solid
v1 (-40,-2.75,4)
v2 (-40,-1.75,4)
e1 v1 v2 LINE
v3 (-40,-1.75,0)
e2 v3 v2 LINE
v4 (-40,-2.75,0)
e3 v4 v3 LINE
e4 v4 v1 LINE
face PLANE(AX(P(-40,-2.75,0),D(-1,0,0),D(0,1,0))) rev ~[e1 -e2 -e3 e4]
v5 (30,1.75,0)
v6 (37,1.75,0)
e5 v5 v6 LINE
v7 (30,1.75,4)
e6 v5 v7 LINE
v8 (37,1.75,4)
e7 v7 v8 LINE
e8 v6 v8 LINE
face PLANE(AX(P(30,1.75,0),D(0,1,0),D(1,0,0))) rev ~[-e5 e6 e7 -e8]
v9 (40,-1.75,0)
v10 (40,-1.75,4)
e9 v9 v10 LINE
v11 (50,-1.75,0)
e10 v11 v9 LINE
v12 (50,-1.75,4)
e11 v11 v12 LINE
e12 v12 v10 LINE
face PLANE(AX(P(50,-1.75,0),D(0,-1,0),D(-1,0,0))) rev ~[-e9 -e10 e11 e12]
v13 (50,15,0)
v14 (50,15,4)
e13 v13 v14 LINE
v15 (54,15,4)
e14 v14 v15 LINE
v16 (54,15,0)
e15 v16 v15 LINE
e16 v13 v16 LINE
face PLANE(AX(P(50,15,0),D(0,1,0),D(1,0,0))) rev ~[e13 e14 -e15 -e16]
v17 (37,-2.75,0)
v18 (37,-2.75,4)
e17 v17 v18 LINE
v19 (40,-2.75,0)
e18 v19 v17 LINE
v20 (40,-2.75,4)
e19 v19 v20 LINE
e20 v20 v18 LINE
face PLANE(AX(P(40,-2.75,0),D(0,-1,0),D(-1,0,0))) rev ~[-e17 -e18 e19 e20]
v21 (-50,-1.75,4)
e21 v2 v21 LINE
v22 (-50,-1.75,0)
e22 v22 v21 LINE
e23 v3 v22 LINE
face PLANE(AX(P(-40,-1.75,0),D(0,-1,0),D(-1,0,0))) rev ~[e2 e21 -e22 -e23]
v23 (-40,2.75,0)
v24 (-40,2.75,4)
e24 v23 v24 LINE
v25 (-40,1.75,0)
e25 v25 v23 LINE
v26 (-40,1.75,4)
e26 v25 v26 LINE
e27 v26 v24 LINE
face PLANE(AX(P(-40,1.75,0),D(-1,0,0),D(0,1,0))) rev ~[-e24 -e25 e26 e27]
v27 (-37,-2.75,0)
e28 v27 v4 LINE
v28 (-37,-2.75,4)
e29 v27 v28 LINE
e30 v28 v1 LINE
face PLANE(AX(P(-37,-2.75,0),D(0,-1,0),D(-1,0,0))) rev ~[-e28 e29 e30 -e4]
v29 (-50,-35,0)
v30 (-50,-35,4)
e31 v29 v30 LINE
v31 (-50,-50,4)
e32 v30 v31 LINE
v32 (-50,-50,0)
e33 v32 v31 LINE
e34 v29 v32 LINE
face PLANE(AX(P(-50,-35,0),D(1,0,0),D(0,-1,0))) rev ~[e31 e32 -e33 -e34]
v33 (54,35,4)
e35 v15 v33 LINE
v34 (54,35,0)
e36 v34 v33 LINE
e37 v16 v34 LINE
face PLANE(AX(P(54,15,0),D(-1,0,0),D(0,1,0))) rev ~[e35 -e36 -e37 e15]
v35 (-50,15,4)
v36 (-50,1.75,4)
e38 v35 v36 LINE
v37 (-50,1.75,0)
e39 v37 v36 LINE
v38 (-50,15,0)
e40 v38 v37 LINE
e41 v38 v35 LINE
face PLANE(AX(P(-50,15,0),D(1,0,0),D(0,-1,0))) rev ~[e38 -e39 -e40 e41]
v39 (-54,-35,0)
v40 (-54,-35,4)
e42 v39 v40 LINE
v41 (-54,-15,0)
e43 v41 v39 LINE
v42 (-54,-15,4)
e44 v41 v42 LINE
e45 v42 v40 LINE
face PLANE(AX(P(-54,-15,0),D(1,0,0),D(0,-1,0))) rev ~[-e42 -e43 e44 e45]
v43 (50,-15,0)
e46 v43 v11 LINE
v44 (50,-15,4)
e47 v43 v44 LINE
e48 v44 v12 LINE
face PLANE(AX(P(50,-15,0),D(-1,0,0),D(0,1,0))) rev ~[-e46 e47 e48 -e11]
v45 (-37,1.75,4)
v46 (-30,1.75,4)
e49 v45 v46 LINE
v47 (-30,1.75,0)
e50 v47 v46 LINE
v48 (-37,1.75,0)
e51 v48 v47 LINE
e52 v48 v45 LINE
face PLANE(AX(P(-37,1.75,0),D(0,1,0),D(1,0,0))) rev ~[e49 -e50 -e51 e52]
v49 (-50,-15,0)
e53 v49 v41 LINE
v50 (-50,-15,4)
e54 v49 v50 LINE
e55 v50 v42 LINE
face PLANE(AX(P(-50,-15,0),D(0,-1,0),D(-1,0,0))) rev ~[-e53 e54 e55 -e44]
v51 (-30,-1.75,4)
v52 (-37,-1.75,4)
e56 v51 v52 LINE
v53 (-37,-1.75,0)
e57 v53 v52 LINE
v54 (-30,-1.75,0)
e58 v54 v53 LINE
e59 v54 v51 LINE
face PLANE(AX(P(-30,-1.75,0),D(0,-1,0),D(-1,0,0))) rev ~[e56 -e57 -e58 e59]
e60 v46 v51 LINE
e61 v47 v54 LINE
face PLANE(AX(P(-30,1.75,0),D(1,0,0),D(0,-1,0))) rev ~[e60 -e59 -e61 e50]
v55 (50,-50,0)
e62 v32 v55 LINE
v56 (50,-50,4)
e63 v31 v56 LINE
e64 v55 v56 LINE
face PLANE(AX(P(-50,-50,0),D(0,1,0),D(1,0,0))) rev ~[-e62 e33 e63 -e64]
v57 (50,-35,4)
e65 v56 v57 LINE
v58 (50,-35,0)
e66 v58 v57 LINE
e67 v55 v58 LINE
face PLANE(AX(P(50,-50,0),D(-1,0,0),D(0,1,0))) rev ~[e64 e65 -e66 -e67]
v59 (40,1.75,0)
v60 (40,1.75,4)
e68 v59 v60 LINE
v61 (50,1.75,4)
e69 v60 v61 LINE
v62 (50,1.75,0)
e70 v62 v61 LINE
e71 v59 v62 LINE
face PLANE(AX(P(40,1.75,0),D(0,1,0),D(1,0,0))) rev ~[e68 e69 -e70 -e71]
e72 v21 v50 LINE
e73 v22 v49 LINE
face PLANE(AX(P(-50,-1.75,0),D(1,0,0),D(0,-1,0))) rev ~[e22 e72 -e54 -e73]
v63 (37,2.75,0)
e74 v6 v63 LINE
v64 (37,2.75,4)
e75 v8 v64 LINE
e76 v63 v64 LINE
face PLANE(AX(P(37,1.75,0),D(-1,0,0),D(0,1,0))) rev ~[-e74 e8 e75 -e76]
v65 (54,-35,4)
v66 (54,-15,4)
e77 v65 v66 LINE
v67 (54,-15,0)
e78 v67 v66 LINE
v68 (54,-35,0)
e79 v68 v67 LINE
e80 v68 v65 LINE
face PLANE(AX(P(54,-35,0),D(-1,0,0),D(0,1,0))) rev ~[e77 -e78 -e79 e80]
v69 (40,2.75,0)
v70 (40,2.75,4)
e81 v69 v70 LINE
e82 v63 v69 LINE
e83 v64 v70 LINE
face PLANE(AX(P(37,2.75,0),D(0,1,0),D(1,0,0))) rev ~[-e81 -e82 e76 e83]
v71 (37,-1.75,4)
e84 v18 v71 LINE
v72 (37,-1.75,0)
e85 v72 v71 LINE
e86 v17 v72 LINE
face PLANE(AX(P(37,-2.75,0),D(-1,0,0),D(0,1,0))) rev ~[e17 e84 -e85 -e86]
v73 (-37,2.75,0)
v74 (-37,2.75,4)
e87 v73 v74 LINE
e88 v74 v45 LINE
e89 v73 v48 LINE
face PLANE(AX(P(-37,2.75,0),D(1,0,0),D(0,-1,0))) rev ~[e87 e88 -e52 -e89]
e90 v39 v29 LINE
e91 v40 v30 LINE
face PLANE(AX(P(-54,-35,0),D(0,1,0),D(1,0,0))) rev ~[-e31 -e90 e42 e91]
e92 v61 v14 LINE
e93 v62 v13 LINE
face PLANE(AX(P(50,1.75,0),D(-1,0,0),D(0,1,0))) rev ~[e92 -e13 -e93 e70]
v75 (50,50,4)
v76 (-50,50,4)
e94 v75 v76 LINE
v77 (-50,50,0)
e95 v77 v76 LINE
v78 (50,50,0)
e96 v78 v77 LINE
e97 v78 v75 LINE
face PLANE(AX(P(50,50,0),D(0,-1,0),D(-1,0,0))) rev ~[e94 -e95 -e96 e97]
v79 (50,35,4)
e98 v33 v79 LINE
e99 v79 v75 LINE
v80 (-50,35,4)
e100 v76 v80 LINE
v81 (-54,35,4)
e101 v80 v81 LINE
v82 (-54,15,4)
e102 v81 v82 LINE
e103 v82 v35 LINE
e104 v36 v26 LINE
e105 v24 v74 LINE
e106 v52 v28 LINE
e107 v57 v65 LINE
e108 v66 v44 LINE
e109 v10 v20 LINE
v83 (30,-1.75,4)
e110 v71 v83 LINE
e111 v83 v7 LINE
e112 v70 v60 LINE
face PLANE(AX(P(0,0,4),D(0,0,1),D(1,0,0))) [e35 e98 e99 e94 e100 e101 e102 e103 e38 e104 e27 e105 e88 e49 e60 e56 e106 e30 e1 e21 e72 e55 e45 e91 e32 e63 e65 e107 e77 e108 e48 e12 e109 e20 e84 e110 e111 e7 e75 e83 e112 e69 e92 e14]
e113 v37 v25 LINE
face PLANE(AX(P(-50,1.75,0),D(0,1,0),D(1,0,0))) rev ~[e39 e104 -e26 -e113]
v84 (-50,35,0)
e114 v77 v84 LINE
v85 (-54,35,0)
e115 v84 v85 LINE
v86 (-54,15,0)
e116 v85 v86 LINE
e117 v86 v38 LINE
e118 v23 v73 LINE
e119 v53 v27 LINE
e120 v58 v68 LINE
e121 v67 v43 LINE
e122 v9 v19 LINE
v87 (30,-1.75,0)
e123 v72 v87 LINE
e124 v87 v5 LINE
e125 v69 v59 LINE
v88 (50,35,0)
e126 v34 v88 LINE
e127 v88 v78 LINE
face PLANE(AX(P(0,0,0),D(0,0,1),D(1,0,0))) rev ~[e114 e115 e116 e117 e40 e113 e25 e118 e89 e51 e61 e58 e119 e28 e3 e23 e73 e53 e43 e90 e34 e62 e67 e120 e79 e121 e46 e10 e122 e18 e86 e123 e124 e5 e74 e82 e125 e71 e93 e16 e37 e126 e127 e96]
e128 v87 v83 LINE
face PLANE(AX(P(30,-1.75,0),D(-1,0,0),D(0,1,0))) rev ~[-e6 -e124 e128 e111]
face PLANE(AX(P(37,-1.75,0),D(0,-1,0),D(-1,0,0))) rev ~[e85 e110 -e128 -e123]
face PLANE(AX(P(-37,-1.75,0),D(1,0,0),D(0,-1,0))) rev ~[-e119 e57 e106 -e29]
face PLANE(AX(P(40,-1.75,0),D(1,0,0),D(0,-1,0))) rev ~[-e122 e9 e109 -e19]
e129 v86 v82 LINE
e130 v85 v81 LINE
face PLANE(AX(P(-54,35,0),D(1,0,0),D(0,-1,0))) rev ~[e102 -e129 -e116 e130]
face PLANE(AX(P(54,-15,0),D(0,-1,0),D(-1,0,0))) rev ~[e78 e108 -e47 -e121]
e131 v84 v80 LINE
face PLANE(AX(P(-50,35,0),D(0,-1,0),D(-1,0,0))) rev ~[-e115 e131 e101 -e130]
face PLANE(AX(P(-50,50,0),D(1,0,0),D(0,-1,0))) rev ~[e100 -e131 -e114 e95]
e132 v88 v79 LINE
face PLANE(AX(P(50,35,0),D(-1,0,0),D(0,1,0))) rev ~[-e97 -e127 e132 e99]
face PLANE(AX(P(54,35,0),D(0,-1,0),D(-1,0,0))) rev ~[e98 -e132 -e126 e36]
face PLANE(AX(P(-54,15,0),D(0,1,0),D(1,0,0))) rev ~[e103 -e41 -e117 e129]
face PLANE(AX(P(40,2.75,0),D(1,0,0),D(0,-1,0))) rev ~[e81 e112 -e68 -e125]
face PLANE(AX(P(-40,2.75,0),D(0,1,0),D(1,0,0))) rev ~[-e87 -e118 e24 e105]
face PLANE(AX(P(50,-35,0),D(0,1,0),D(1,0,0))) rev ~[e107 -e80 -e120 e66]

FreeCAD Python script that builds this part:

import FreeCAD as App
import Part
import Sketcher
from FreeCAD import Vector

doc = App.newDocument("Part")
body = doc.addObject("PartDesign::Body", "Body")

sketch1 = body.newObject("Sketcher::SketchObject", "Sketch")
sketch1.AttachmentSupport = (doc.getObject("XY_Plane"), [""])
sketch1.MapMode = "FlatFace"
sketch1.addGeometry([
    Part.LineSegment(Vector(-50, -50, 0), Vector(50, -50, 0)),
    Part.LineSegment(Vector(50, -50, 0), Vector(50, -35, 0)),
    Part.LineSegment(Vector(50, -35, 0), Vector(54, -35, 0)),
    Part.LineSegment(Vector(54, -35, 0), Vector(54, -15, 0)),
    Part.LineSegment(Vector(54, -15, 0), Vector(50, -15, 0)),
    Part.LineSegment(Vector(50, -15, 0), Vector(50, -1.75, 0)),
    Part.LineSegment(Vector(50, -1.75, 0), Vector(40, -1.75, 0)),
    Part.LineSegment(Vector(40, -1.75, 0), Vector(40, -2.75, 0)),
    Part.LineSegment(Vector(40, -2.75, 0), Vector(37, -2.75, 0)),
    Part.LineSegment(Vector(37, -2.75, 0), Vector(37, -1.75, 0)),
    Part.LineSegment(Vector(37, -1.75, 0), Vector(30, -1.75, 0)),
    Part.LineSegment(Vector(30, -1.75, 0), Vector(30, 1.75, 0)),
    Part.LineSegment(Vector(30, 1.75, 0), Vector(37, 1.75, 0)),
    Part.LineSegment(Vector(37, 1.75, 0), Vector(37, 2.75, 0)),
    Part.LineSegment(Vector(37, 2.75, 0), Vector(40, 2.75, 0)),
    Part.LineSegment(Vector(40, 2.75, 0), Vector(40, 1.75, 0)),
    Part.LineSegment(Vector(40, 1.75, 0), Vector(50, 1.75, 0)),
    Part.LineSegment(Vector(50, 1.75, 0), Vector(50, 15, 0)),
    Part.LineSegment(Vector(50, 15, 0), Vector(54, 15, 0)),
    Part.LineSegment(Vector(54, 15, 0), Vector(54, 35, 0)),
    Part.LineSegment(Vector(54, 35, 0), Vector(50, 35, 0)),
    Part.LineSegment(Vector(50, 35, 0), Vector(50, 50, 0)),
    Part.LineSegment(Vector(50, 50, 0), Vector(-50, 50, 0)),
    Part.LineSegment(Vector(-50, 50, 0), Vector(-50, 35, 0)),
    Part.LineSegment(Vector(-50, 35, 0), Vector(-54, 35, 0)),
    Part.LineSegment(Vector(-54, 35, 0), Vector(-54, 15, 0)),
    Part.LineSegment(Vector(-54, 15, 0), Vector(-50, 15, 0)),
    Part.LineSegment(Vector(-50, 15, 0), Vector(-50, 1.75, 0)),
    Part.LineSegment(Vector(-50, 1.75, 0), Vector(-40, 1.75, 0)),
    Part.LineSegment(Vector(-40, 1.75, 0), Vector(-40, 2.75, 0)),
    Part.LineSegment(Vector(-40, 2.75, 0), Vector(-37, 2.75, 0)),
    Part.LineSegment(Vector(-37, 2.75, 0), Vector(-37, 1.75, 0)),
    Part.LineSegment(Vector(-37, 1.75, 0), Vector(-30, 1.75, 0)),
    Part.LineSegment(Vector(-30, 1.75, 0), Vector(-30, -1.75, 0)),
    Part.LineSegment(Vector(-30, -1.75, 0), Vector(-37, -1.75, 0)),
    Part.LineSegment(Vector(-37, -1.75, 0), Vector(-37, -2.75, 0)),
    Part.LineSegment(Vector(-37, -2.75, 0), Vector(-40, -2.75, 0)),
    Part.LineSegment(Vector(-40, -2.75, 0), Vector(-40, -1.75, 0)),
    Part.LineSegment(Vector(-40, -1.75, 0), Vector(-50, -1.75, 0)),
    Part.LineSegment(Vector(-50, -1.75, 0), Vector(-50, -15, 0)),
    Part.LineSegment(Vector(-50, -15, 0), Vector(-54, -15, 0)),
    Part.LineSegment(Vector(-54, -15, 0), Vector(-54, -35, 0)),
    Part.LineSegment(Vector(-54, -35, 0), Vector(-50, -35, 0)),
    Part.LineSegment(Vector(-50, -35, 0), Vector(-50, -50, 0)),
], False)
sketch1.addConstraint([
    Sketcher.Constraint("Coincident", 0, 2, 1, 1),
    Sketcher.Constraint("Coincident", 1, 2, 2, 1),
    Sketcher.Constraint("Coincident", 2, 2, 3, 1),
    Sketcher.Constraint("Coincident", 3, 2, 4, 1),
    Sketcher.Constraint("Coincident", 4, 2, 5, 1),
    Sketcher.Constraint("Coincident", 5, 2, 6, 1),
    Sketcher.Constraint("Coincident", 6, 2, 7, 1),
    Sketcher.Constraint("Coincident", 7, 2, 8, 1),
    Sketcher.Constraint("Coincident", 8, 2, 9, 1),
    Sketcher.Constraint("Coincident", 9, 2, 10, 1),
    Sketcher.Constraint("Coincident", 10, 2, 11, 1),
    Sketcher.Constraint("Coincident", 11, 2, 12, 1),
    Sketcher.Constraint("Coincident", 12, 2, 13, 1),
    Sketcher.Constraint("Coincident", 13, 2, 14, 1),
    Sketcher.Constraint("Coincident", 14, 2, 15, 1),
    Sketcher.Constraint("Coincident", 15, 2, 16, 1),
    Sketcher.Constraint("Coincident", 16, 2, 17, 1),
    Sketcher.Constraint("Coincident", 17, 2, 18, 1),
    Sketcher.Constraint("Coincident", 18, 2, 19, 1),
    Sketcher.Constraint("Coincident", 19, 2, 20, 1),
    Sketcher.Constraint("Coincident", 20, 2, 21, 1),
    Sketcher.Constraint("Coincident", 21, 2, 22, 1),
    Sketcher.Constraint("Coincident", 22, 2, 23, 1),
    Sketcher.Constraint("Coincident", 23, 2, 24, 1),
    Sketcher.Constraint("Coincident", 24, 2, 25, 1),
    Sketcher.Constraint("Coincident", 25, 2, 26, 1),
    Sketcher.Constraint("Coincident", 26, 2, 27, 1),
    Sketcher.Constraint("Coincident", 27, 2, 28, 1),
    Sketcher.Constraint("Coincident", 28, 2, 29, 1),
    Sketcher.Constraint("Coincident", 29, 2, 30, 1),
    Sketcher.Constraint("Coincident", 30, 2, 31, 1),
    Sketcher.Constraint("Coincident", 31, 2, 32, 1),
    Sketcher.Constraint("Coincident", 32, 2, 33, 1),
    Sketcher.Constraint("Coincident", 33, 2, 34, 1),
    Sketcher.Constraint("Coincident", 34, 2, 35, 1),
    Sketcher.Constraint("Coincident", 35, 2, 36, 1),
    Sketcher.Constraint("Coincident", 36, 2, 37, 1),
    Sketcher.Constraint("Coincident", 37, 2, 38, 1),
    Sketcher.Constraint("Coincident", 38, 2, 39, 1),
    Sketcher.Constraint("Coincident", 39, 2, 40, 1),
    Sketcher.Constraint("Coincident", 40, 2, 41, 1),
    Sketcher.Constraint("Coincident", 41, 2, 42, 1),
    Sketcher.Constraint("Coincident", 42, 2, 43, 1),
    Sketcher.Constraint("Coincident", 43, 2, 0, 1),
    Sketcher.Constraint("Horizontal", 0),
    Sketcher.Constraint("Vertical", 1),
    Sketcher.Constraint("Horizontal", 2),
    Sketcher.Constraint("Vertical", 3),
    Sketcher.Constraint("Horizontal", 4),
    Sketcher.Constraint("Vertical", 5),
    Sketcher.Constraint("Horizontal", 6),
    Sketcher.Constraint("Vertical", 7),
    Sketcher.Constraint("Horizontal", 8),
    Sketcher.Constraint("Vertical", 9),
    Sketcher.Constraint("Horizontal", 10),
    Sketcher.Constraint("Vertical", 11),
    Sketcher.Constraint("Horizontal", 12),
    Sketcher.Constraint("Vertical", 13),
    Sketcher.Constraint("Horizontal", 14),
    Sketcher.Constraint("Vertical", 15),
    Sketcher.Constraint("Horizontal", 16),
    Sketcher.Constraint("Vertical", 17),
    Sketcher.Constraint("Horizontal", 18),
    Sketcher.Constraint("Vertical", 19),
    Sketcher.Constraint("Horizontal", 20),
    Sketcher.Constraint("Vertical", 21),
    Sketcher.Constraint("Horizontal", 22),
    Sketcher.Constraint("Vertical", 23),
    Sketcher.Constraint("Horizontal", 24),
    Sketcher.Constraint("Vertical", 25),
    Sketcher.Constraint("Horizontal", 26),
    Sketcher.Constraint("Vertical", 27),
    Sketcher.Constraint("Horizontal", 28),
    Sketcher.Constraint("Vertical", 29),
    Sketcher.Constraint("Horizontal", 30),
    Sketcher.Constraint("Vertical", 31),
    Sketcher.Constraint("Horizontal", 32),
    Sketcher.Constraint("Vertical", 33),
    Sketcher.Constraint("Horizontal", 34),
    Sketcher.Constraint("Vertical", 35),
    Sketcher.Constraint("Horizontal", 36),
    Sketcher.Constraint("Vertical", 37),
    Sketcher.Constraint("Horizontal", 38),
    Sketcher.Constraint("Vertical", 39),
    Sketcher.Constraint("Horizontal", 40),
    Sketcher.Constraint("Vertical", 41),
    Sketcher.Constraint("Horizontal", 42),
    Sketcher.Constraint("Vertical", 43),
    Sketcher.Constraint("Symmetric", 0, 2, 22, 2, -1, 1),
    Sketcher.Constraint("Symmetric", 2, 2, 24, 2, -1, 1),
    Sketcher.Constraint("Symmetric", 4, 2, 26, 2, -1, 1),
    Sketcher.Constraint("Symmetric", 6, 2, 28, 2, -1, 1),
    Sketcher.Constraint("Symmetric", 8, 2, 30, 2, -1, 1),
    Sketcher.Constraint("Symmetric", 10, 2, 32, 2, -1, 1),
    Sketcher.Constraint("Symmetric", 12, 2, 34, 2, -1, 1),
    Sketcher.Constraint("Symmetric", 14, 2, 36, 2, -1, 1),
    Sketcher.Constraint("Symmetric", 16, 2, 38, 2, -1, 1),
    Sketcher.Constraint("Symmetric", 18, 2, 40, 2, -1, 1),
    Sketcher.Constraint("Symmetric", 20, 2, 42, 2, -1, 1),
    Sketcher.Constraint("Symmetric", 20, 2, 23, 2, -2),
    Sketcher.Constraint("Symmetric", 18, 2, 25, 2, -2),
    Sketcher.Constraint("Symmetric", 16, 2, 27, 2, -2),
    Sketcher.Constraint("Symmetric", 14, 2, 29, 2, -2),
    Sketcher.Constraint("Symmetric", 12, 2, 31, 2, -2),
    Sketcher.Constraint("Horizontal", 6, 2, 9, 2),
    Sketcher.Constraint("Vertical", 1, 2, 4, 2),
    Sketcher.Constraint("DistanceX", 0, 1, 0, 2, 100.0),
    Sketcher.Constraint("DistanceX", 2, 1, 2, 2, 4.0),
    Sketcher.Constraint("DistanceX", 6, 2, 6, 1, 10.0),
    Sketcher.Constraint("DistanceX", 8, 2, 8, 1, 3.0),
    Sketcher.Constraint("DistanceX", 10, 2, 10, 1, 7.0),
    Sketcher.Constraint("DistanceY", 1, 1, 1, 2, 15.0),
    Sketcher.Constraint("DistanceY", 3, 1, 3, 2, 20.0),
    Sketcher.Constraint("DistanceY", 7, 2, 7, 1, 1.0),
    Sketcher.Constraint("DistanceY", 11, 1, 11, 2, 3.5),
    Sketcher.Constraint("DistanceY", 0, 2, -1, 1, 50.0),
])
pad1 = body.newObject("PartDesign::Pad", "Pad")
pad1.Profile = sketch1
pad1.Length = 4

doc.recompute()
